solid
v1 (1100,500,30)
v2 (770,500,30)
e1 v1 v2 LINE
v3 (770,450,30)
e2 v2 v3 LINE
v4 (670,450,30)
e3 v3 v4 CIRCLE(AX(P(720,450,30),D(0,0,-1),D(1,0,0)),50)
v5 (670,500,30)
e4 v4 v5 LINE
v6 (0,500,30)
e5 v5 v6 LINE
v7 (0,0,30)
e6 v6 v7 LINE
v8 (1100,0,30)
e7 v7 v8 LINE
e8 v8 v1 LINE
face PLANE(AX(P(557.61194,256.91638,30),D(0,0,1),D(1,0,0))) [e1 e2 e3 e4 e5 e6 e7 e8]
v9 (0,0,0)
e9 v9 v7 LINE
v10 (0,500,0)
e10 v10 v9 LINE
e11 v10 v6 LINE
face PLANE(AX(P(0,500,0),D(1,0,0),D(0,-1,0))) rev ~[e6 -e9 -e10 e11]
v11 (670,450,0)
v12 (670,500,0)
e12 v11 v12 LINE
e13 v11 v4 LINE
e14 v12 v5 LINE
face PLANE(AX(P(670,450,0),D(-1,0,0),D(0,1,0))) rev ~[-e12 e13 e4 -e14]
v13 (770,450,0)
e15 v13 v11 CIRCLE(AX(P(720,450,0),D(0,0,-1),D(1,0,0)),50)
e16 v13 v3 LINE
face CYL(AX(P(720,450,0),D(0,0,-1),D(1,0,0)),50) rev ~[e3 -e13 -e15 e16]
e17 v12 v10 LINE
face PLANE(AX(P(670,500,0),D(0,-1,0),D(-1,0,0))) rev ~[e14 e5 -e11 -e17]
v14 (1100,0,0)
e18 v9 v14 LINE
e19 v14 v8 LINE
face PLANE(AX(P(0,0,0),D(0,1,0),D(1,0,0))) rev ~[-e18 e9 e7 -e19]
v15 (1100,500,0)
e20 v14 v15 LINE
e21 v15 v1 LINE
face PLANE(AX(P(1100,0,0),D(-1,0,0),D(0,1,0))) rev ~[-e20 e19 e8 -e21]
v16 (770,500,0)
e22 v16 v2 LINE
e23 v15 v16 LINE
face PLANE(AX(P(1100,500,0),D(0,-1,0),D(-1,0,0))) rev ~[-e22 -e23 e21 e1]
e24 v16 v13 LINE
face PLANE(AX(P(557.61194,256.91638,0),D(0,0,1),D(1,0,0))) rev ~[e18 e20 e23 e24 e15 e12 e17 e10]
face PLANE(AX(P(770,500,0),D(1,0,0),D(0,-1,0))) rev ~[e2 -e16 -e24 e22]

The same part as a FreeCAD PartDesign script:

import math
import FreeCAD as App
import Part
import Sketcher

doc = App.newDocument("Part")
body = doc.addObject("PartDesign::Body", "Body")

sketch1 = body.newObject("Sketcher::SketchObject", "Sketch")
sketch1.AttachmentSupport = (doc.getObject("XY_Plane"), [""])
sketch1.MapMode = "FlatFace"
sketch1.addGeometry([
    Part.LineSegment(App.Vector(0, 500, 0), App.Vector(0, 0, 0)),
    Part.LineSegment(App.Vector(0, 0, 0), App.Vector(1100, 0, 0)),
    Part.LineSegment(App.Vector(1100, 0, 0), App.Vector(1100, 500, 0)),
    Part.LineSegment(App.Vector(1100, 500, 0), App.Vector(770, 500, 0)),
    Part.LineSegment(App.Vector(770, 500, 0), App.Vector(770, 450, 0)),
    Part.ArcOfCircle(Part.Circle(App.Vector(720, 450, 0), App.Vector(0, 0, 1), 50), math.radians(180), math.radians(360)),
    Part.LineSegment(App.Vector(670, 450, 0), App.Vector(670, 500, 0)),
    Part.LineSegment(App.Vector(670, 500, 0), App.Vector(0, 500, 0)),
], False)
sketch1.addConstraint([
    Sketcher.Constraint("Coincident", 0, 2, 1, 1),
    Sketcher.Constraint("Coincident", 1, 2, 2, 1),
    Sketcher.Constraint("Coincident", 2, 2, 3, 1),
    Sketcher.Constraint("Coincident", 3, 2, 4, 1),
    Sketcher.Constraint("Tangent", 4, 2, 5, 2),
    Sketcher.Constraint("Tangent", 5, 1, 6, 1),
    Sketcher.Constraint("Coincident", 6, 2, 7, 1),
    Sketcher.Constraint("Coincident", 7, 2, 0, 1),
    Sketcher.Constraint("Vertical", 0),
    Sketcher.Constraint("Horizontal", 1),
    Sketcher.Constraint("Vertical", 2),
    Sketcher.Constraint("Horizontal", 3),
    Sketcher.Constraint("Vertical", 4),
    Sketcher.Constraint("Vertical", 6),
    Sketcher.Constraint("Horizontal", 7),
    Sketcher.Constraint("Coincident", 0, 2, -1, 1),
    Sketcher.Constraint("Horizontal", 3, 2, 6, 2),
    Sketcher.Constraint("Radius", 5, 50.0),
    Sketcher.Constraint("DistanceX", 1, 1, 1, 2, 1100.0),
    Sketcher.Constraint("DistanceX", 3, 2, 3, 1, 330.0),
    Sketcher.Constraint("DistanceY", 0, 2, 0, 1, 500.0),
    Sketcher.Constraint("DistanceY", 4, 2, 4, 1, 50.0),
])
pad1 = body.newObject("PartDesign::Pad", "Pad")
pad1.Profile = sketch1
pad1.Length = 30

doc.recompute()
